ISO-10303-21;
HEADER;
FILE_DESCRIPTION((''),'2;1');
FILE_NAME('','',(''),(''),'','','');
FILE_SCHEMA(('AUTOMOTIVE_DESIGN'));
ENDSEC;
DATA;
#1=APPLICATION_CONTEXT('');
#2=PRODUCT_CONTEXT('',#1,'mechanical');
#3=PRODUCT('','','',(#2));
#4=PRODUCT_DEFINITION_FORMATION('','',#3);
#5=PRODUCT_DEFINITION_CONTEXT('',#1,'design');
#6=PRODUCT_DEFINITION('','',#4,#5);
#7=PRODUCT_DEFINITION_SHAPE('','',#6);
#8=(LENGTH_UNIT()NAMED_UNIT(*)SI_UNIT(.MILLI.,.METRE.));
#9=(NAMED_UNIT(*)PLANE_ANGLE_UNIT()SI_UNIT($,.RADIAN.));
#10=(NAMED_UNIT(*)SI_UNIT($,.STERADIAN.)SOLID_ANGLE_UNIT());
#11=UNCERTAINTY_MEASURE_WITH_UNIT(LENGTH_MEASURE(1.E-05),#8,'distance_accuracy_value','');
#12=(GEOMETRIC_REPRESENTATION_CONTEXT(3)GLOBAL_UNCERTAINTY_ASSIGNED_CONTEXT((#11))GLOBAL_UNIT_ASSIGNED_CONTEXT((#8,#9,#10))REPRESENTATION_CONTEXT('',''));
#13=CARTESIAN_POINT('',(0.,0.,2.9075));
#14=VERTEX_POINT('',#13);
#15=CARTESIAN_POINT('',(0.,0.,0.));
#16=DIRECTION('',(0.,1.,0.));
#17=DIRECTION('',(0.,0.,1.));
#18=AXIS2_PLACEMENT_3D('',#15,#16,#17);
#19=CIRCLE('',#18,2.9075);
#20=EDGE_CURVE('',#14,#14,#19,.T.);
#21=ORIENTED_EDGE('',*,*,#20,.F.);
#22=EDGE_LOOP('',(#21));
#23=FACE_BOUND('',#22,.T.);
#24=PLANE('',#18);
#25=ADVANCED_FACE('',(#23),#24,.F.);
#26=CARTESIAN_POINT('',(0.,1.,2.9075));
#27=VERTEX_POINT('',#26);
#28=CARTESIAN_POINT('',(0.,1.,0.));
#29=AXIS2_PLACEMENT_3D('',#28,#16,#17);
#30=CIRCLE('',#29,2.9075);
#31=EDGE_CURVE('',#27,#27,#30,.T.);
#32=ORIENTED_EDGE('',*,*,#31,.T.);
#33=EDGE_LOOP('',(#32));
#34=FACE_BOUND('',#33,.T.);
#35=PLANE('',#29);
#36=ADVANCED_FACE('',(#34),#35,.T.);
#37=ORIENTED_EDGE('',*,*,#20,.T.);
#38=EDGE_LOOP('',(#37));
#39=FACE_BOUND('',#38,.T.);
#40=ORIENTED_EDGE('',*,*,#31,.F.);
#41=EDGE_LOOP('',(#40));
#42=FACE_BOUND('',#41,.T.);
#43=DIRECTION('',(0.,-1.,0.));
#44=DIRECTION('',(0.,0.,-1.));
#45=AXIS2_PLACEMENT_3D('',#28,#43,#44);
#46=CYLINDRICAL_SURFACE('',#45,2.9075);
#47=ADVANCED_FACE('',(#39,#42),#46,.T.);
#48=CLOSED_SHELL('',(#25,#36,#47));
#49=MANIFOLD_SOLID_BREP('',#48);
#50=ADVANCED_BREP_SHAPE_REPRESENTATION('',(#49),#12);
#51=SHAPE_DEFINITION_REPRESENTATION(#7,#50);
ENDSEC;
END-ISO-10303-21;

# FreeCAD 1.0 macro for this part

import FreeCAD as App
import Part
import Sketcher

V = App.Vector
Q = App.Units.Quantity

doc = App.newDocument("Part")
body = doc.addObject("PartDesign::Body", "Body")

sketch1 = body.newObject("Sketcher::SketchObject", "Sketch")
sketch1.AttachmentSupport = (doc.getObject("XZ_Plane"), [""])
sketch1.MapMode = "FlatFace"
sketch1.addGeometry(Part.Circle(V(0, 0, 0), V(0, 0, 1), 2.9075), False)
sketch1.addConstraint(Sketcher.Constraint("Coincident", 0, 3, -1, 1))
sketch1.addConstraint(Sketcher.Constraint("Diameter", 0, Q("5.815 mm")))
pad1 = body.newObject("PartDesign::Pad", "Pad")
pad1.Profile = sketch1
pad1.Length = 1
pad1.Reversed = True

doc.recompute()
